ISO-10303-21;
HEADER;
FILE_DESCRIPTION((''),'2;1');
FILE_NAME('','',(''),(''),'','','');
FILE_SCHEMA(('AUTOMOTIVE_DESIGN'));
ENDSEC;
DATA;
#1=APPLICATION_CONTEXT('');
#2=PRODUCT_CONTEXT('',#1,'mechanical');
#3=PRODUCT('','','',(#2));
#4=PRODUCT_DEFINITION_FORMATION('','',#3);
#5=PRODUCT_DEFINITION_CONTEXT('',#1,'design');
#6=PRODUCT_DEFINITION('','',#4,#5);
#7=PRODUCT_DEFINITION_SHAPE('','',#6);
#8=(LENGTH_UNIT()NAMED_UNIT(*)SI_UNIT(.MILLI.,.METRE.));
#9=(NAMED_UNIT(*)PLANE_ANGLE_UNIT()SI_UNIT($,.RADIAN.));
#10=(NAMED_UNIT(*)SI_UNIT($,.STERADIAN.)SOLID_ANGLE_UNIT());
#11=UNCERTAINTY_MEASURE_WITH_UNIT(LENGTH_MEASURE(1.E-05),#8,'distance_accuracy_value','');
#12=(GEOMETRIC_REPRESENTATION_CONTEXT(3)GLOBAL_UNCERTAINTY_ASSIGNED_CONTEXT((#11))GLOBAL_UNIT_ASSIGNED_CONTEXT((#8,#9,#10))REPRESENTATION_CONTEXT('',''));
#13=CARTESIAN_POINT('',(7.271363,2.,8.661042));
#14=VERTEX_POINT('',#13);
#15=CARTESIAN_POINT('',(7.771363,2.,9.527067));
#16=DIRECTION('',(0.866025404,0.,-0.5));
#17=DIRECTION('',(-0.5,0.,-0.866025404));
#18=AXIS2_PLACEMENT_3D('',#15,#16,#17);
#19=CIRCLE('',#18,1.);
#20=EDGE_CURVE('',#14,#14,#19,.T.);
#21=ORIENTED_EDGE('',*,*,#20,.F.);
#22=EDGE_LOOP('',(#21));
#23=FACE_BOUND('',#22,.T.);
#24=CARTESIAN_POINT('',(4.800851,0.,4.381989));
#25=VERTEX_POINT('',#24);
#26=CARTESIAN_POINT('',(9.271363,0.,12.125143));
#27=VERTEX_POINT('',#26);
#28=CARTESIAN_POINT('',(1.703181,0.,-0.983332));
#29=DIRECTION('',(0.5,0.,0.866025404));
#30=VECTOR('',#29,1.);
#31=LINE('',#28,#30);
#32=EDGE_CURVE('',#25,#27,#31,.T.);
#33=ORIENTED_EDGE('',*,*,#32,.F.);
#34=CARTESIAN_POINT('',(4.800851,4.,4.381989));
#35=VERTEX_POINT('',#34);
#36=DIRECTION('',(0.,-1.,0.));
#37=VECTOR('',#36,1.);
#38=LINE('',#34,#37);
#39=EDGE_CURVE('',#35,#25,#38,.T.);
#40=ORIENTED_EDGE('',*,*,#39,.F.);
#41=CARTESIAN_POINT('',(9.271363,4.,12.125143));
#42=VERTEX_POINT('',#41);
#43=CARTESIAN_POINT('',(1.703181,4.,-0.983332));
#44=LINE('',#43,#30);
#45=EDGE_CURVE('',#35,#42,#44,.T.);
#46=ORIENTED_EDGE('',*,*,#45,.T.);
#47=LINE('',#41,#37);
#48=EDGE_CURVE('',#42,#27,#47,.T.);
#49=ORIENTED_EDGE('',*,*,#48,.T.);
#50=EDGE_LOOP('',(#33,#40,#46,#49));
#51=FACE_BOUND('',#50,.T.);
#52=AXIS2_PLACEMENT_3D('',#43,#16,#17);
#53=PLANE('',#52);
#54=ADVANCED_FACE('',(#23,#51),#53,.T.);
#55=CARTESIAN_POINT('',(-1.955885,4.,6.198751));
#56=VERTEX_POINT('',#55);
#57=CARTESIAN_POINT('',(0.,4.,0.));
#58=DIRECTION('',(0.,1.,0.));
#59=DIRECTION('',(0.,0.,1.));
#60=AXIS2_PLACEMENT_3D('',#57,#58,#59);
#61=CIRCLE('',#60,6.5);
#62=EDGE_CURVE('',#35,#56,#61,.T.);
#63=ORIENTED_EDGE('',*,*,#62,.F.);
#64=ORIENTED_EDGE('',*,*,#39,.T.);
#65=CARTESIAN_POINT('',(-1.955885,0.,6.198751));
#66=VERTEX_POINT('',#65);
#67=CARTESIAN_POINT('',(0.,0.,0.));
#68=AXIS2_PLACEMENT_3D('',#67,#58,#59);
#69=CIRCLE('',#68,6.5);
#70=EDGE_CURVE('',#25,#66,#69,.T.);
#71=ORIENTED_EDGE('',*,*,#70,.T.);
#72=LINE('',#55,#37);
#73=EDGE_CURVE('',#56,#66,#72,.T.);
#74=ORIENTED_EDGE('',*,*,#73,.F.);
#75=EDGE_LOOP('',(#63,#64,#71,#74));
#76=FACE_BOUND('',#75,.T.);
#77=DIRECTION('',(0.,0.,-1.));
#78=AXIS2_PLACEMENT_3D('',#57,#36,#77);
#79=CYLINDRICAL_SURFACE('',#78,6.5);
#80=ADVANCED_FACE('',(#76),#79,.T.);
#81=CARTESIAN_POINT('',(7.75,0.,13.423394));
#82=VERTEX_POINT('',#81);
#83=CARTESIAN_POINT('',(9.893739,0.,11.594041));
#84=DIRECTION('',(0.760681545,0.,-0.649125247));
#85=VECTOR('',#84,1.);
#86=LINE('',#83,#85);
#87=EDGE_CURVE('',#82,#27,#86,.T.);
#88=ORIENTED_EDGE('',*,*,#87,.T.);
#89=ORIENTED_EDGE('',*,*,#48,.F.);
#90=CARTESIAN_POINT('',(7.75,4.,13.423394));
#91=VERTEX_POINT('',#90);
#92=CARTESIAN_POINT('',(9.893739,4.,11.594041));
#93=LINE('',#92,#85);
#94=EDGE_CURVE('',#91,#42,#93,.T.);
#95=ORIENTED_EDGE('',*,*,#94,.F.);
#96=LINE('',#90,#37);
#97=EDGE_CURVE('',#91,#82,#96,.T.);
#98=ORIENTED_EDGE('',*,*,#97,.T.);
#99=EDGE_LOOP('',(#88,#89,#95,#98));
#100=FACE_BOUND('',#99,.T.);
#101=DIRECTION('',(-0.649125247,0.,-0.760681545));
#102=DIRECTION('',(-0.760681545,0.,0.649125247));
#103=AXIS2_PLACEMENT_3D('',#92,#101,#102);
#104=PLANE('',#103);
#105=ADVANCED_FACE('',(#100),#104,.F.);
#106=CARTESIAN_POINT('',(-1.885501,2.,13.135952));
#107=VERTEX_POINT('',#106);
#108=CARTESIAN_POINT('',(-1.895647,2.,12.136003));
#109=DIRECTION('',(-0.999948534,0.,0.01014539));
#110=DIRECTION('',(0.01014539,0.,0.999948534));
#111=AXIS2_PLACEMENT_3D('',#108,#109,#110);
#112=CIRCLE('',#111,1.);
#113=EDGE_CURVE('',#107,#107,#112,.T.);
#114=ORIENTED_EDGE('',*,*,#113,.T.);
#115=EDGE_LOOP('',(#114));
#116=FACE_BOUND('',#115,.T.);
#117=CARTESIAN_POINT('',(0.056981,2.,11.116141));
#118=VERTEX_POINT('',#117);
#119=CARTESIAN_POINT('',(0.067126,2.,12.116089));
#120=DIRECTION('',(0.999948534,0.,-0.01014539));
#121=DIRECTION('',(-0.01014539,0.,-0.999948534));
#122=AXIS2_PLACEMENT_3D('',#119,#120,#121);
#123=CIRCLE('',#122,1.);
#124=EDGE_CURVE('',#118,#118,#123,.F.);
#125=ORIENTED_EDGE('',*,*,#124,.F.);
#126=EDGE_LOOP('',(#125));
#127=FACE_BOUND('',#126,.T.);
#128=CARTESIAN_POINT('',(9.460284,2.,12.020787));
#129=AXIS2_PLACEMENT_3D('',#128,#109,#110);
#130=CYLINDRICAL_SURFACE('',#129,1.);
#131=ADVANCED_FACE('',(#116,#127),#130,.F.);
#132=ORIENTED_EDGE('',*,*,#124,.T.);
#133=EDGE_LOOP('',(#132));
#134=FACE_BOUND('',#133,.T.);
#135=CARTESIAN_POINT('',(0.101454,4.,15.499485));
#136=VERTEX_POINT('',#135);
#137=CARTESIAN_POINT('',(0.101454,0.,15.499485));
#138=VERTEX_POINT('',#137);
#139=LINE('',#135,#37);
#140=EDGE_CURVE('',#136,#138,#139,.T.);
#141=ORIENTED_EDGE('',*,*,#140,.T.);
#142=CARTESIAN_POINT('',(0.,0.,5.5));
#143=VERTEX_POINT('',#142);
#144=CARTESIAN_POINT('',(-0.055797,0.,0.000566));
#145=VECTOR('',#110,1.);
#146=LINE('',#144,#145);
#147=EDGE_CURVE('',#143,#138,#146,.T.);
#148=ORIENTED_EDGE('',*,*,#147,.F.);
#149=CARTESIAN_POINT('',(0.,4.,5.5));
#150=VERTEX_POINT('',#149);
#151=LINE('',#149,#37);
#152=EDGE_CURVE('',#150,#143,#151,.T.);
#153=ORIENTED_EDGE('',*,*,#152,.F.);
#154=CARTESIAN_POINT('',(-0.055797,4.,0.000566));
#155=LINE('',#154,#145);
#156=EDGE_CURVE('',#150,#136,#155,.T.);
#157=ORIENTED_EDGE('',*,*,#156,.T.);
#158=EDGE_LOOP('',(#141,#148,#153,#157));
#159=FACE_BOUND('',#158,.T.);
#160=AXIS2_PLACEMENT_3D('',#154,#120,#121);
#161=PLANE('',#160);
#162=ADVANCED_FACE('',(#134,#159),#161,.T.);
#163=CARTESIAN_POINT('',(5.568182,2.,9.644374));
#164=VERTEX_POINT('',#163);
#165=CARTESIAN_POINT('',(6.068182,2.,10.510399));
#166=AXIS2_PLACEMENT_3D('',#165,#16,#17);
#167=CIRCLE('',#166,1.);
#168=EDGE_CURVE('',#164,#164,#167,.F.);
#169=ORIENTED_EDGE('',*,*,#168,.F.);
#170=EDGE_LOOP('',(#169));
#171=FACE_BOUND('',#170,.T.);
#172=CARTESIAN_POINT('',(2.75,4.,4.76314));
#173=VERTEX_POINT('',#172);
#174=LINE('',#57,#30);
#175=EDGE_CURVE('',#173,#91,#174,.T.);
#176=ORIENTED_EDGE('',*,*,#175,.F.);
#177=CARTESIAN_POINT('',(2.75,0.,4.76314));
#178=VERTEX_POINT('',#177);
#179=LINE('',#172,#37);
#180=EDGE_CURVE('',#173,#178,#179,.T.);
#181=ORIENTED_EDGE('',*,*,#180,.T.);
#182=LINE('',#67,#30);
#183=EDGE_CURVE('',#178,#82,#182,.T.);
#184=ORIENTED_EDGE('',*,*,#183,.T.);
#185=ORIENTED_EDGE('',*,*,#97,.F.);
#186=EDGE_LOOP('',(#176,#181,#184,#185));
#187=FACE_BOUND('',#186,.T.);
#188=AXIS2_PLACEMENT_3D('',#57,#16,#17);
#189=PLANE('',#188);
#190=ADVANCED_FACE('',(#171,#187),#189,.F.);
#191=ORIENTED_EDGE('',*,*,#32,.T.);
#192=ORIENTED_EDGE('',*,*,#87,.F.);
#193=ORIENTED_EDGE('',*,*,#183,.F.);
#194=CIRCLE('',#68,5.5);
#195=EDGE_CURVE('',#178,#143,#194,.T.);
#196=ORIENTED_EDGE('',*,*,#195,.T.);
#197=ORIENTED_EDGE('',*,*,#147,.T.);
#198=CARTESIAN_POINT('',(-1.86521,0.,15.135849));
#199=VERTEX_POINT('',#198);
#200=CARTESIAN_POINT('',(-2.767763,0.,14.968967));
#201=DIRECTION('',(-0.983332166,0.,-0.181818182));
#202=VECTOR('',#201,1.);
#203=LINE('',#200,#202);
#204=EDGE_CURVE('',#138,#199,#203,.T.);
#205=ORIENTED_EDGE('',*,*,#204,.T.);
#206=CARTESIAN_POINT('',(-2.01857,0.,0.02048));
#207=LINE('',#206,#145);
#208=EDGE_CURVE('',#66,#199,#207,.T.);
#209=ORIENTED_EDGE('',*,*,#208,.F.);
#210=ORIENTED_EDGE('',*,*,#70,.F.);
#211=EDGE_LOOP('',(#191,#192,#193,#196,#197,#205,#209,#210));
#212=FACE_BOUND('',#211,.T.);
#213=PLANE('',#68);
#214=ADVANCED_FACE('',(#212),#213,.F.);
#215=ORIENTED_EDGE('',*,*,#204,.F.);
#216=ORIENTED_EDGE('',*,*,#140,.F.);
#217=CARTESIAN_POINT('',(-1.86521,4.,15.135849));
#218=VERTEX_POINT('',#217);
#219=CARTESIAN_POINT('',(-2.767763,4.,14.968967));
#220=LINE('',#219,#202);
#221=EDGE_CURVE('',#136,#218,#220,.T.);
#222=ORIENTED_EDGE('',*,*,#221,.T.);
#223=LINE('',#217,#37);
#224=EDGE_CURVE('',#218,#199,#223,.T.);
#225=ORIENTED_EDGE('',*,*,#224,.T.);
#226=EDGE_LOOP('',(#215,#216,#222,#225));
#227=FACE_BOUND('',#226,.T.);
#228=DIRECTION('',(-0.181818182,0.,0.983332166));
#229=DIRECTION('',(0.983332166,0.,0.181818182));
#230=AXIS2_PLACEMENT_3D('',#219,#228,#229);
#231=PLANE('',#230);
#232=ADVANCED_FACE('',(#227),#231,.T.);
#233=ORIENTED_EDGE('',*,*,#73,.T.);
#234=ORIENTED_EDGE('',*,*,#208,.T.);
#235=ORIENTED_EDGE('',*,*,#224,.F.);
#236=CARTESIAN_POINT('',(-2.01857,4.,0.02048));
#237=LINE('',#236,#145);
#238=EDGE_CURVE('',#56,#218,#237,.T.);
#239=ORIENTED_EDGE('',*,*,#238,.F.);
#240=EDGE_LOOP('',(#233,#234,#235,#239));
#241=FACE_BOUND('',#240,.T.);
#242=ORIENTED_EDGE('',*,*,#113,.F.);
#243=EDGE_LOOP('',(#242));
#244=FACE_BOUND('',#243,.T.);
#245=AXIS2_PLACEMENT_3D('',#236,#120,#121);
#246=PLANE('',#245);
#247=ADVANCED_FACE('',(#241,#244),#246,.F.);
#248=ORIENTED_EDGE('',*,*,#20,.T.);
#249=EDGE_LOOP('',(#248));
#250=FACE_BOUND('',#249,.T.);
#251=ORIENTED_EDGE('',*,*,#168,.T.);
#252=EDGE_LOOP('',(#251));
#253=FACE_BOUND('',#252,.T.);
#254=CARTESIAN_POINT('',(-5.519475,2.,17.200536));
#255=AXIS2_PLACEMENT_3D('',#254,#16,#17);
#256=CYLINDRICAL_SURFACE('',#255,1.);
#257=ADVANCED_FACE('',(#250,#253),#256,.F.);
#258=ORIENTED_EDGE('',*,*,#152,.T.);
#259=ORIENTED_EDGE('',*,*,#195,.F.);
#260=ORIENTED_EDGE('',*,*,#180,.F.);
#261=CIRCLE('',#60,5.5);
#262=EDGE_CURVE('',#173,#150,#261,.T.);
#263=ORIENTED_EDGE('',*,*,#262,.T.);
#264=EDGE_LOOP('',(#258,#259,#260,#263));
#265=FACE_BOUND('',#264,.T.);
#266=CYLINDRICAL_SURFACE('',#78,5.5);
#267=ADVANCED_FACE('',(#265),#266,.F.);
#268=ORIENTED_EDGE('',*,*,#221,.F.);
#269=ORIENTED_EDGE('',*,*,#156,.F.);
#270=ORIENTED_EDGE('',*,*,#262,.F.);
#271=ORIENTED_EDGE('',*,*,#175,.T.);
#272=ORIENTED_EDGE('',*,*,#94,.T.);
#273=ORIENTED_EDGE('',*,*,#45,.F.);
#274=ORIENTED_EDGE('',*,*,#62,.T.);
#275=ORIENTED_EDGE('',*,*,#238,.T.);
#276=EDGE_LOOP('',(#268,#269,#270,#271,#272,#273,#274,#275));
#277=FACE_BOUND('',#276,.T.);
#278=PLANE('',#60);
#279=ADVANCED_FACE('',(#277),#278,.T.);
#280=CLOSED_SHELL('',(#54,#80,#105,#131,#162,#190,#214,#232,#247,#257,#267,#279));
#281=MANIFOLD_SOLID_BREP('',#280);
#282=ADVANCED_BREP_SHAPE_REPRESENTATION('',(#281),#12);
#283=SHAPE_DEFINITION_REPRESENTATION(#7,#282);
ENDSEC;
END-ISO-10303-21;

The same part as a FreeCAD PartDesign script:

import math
import FreeCAD as App
import Part
import Sketcher
from FreeCAD import Vector
Q = App.Units.Quantity

doc = App.newDocument("Part")
body = doc.addObject("PartDesign::Body", "Body")

sketch1 = doc.addObject("Sketcher::SketchObject", "Sketch")
body.addObject(sketch1)
sketch1.AttachmentSupport = (doc.XZ_Plane, [""])
sketch1.MapMode = "FlatFace"
sketch1.addGeometry([
    Part.ArcOfCircle(Part.Circle(Vector(0, 0, 0), Vector(0, 0, 1), 5.5), math.radians(111), math.radians(399)),
    Part.ArcOfCircle(Part.Circle(Vector(0, 0, 0), Vector(0, 0, 1), 5.5), math.radians(39), math.radians(60)),
    Part.LineSegment(Vector(2.8, 4.8, 0), Vector(3.2, 5.6, 0)),
    Part.LineSegment(Vector(3.2, 5.6, 0), Vector(7.8, 13.4, 0)),
    Part.LineSegment(Vector(7.8, 13.4, 0), Vector(9.3, 12.1, 0)),
    Part.LineSegment(Vector(9.3, 12.1, 0), Vector(4.8, 4.4, 0)),
    Part.ArcOfCircle(Part.Circle(Vector(0, 0, 0), Vector(0, 0, 1), 6.5), math.radians(108), math.radians(402)),
    Part.LineSegment(Vector(-2, 6.2, 0), Vector(-1.9, 15.1, 0)),
    Part.LineSegment(Vector(-1.9, 15.1, 0), Vector(0.1, 15.5, 0)),
    Part.LineSegment(Vector(0.1, 15.5, 0), Vector(0, 5.5, 0)),
    Part.ArcOfCircle(Part.Circle(Vector(0, 0, 0), Vector(0, 0, 1), 5.5), math.radians(90), math.radians(111)),
], False)
sketch1.addConstraint([
    Sketcher.Constraint("Tangent", 0, 2, 1, 1),
    Sketcher.Constraint("Coincident", 1, 2, 2, 1),
    Sketcher.Constraint("Coincident", 2, 2, 3, 1),
    Sketcher.Constraint("Coincident", 3, 2, 4, 1),
    Sketcher.Constraint("Coincident", 4, 2, 5, 1),
    Sketcher.Constraint("Coincident", 5, 2, 6, 2),
    Sketcher.Constraint("Coincident", 6, 1, 7, 1),
    Sketcher.Constraint("Coincident", 7, 2, 8, 1),
    Sketcher.Constraint("Coincident", 8, 2, 9, 1),
    Sketcher.Constraint("Coincident", 9, 2, 10, 1),
    Sketcher.Constraint("Tangent", 10, 2, 0, 1),
    Sketcher.Constraint("Coincident", 0, 3, -1, 1),
    Sketcher.Constraint("Coincident", 6, 3, -1, 1),
    Sketcher.Constraint("Equal", 0, 1),
    Sketcher.Constraint("Equal", 1, 10),
    Sketcher.Constraint("PointOnObject", 9, 2, -2),
    Sketcher.Constraint("Parallel", 2, 3),
    Sketcher.Constraint("Parallel", 3, 5),
    Sketcher.Constraint("Parallel", 7, 9),
    Sketcher.Constraint("Equal", 4, 8),
    Sketcher.Constraint("Radius", 0, 5.5),
    Sketcher.Constraint("Radius", 6, 6.5),
    Sketcher.Constraint("Angle", 2, Q("60 deg")),
    Sketcher.Constraint("Distance", 2, 1.0),
    Sketcher.Constraint("Distance", 3, 9.0),
    Sketcher.Constraint("Distance", 4, 2.0),
    Sketcher.Constraint("Distance", 9, 10.0),
    Sketcher.Constraint("DistanceX", 0, 2, 4, 2, 5.0),
    Sketcher.Constraint("DistanceX", -1, 1, 1, 2, 2.75),
    Sketcher.Constraint("DistanceY", 0, 2, 5, 2, 0.9171),
    Sketcher.Constraint("DistanceY", 6, 1, 7, 2, 8.937098),
    Sketcher.Constraint("DistanceY", 10, 2, 2, 2, 0.492801),
    Sketcher.Constraint("Distance", 7, 8.937558),
])
pad1 = doc.addObject("PartDesign::Pad", "Pad")
body.addObject(pad1)
pad1.Profile = sketch1
pad1.Length = 4
pad1.Reversed = True

sketch2 = doc.addObject("Sketcher::SketchObject", "Sketch001")
body.addObject(sketch2)
sketch2.Placement = App.Placement(Vector(-2.01857, 0, 0.02048), App.Rotation(Vector(0.01014539, 0, 0.999948534), Vector(0, 1, 0), Vector(-0.999948534, 0, 0.01014539), "ZXY"))
sketch2.addGeometry(Part.Circle(Vector(12.1, 2, 0), Vector(0, 0, 1), 1), False)
sketch2.addConstraint([
    Sketcher.Constraint("Diameter", 0, 2.0),
    Sketcher.Constraint("DistanceY", -1, 1, 0, 3, 2.0),
    Sketcher.Constraint("DistanceX", -1, 1, 0, 3, 12.116147),
])
pocket1 = doc.addObject("PartDesign::Pocket", "Pocket")
body.addObject(pocket1)
pocket1.Profile = sketch2
pocket1.Type = "UpToFirst"

sketch3 = doc.addObject("Sketcher::SketchObject", "Sketch002")
body.addObject(sketch3)
sketch3.Placement = App.Placement(Vector(1.703181, 0, -0.983332), App.Rotation(Vector(-0.5, 0, -0.866025404), Vector(0, 1, 0), Vector(0.866025404, 0, -0.5), "ZXY"))
sketch3.addGeometry(Part.Circle(Vector(-12.1, 2, 0), Vector(0, 0, 1), 1), False)
sketch3.addConstraint([
    Sketcher.Constraint("Diameter", 0, 2.0),
    Sketcher.Constraint("DistanceY", -1, 1, 0, 3, 2.0),
    Sketcher.Constraint("DistanceX", 0, 3, -1, 1, 12.136364),
])
pocket2 = doc.addObject("PartDesign::Pocket", "Pocket001")
body.addObject(pocket2)
pocket2.Profile = sketch3
pocket2.Type = "UpToFirst"

doc.recompute()
